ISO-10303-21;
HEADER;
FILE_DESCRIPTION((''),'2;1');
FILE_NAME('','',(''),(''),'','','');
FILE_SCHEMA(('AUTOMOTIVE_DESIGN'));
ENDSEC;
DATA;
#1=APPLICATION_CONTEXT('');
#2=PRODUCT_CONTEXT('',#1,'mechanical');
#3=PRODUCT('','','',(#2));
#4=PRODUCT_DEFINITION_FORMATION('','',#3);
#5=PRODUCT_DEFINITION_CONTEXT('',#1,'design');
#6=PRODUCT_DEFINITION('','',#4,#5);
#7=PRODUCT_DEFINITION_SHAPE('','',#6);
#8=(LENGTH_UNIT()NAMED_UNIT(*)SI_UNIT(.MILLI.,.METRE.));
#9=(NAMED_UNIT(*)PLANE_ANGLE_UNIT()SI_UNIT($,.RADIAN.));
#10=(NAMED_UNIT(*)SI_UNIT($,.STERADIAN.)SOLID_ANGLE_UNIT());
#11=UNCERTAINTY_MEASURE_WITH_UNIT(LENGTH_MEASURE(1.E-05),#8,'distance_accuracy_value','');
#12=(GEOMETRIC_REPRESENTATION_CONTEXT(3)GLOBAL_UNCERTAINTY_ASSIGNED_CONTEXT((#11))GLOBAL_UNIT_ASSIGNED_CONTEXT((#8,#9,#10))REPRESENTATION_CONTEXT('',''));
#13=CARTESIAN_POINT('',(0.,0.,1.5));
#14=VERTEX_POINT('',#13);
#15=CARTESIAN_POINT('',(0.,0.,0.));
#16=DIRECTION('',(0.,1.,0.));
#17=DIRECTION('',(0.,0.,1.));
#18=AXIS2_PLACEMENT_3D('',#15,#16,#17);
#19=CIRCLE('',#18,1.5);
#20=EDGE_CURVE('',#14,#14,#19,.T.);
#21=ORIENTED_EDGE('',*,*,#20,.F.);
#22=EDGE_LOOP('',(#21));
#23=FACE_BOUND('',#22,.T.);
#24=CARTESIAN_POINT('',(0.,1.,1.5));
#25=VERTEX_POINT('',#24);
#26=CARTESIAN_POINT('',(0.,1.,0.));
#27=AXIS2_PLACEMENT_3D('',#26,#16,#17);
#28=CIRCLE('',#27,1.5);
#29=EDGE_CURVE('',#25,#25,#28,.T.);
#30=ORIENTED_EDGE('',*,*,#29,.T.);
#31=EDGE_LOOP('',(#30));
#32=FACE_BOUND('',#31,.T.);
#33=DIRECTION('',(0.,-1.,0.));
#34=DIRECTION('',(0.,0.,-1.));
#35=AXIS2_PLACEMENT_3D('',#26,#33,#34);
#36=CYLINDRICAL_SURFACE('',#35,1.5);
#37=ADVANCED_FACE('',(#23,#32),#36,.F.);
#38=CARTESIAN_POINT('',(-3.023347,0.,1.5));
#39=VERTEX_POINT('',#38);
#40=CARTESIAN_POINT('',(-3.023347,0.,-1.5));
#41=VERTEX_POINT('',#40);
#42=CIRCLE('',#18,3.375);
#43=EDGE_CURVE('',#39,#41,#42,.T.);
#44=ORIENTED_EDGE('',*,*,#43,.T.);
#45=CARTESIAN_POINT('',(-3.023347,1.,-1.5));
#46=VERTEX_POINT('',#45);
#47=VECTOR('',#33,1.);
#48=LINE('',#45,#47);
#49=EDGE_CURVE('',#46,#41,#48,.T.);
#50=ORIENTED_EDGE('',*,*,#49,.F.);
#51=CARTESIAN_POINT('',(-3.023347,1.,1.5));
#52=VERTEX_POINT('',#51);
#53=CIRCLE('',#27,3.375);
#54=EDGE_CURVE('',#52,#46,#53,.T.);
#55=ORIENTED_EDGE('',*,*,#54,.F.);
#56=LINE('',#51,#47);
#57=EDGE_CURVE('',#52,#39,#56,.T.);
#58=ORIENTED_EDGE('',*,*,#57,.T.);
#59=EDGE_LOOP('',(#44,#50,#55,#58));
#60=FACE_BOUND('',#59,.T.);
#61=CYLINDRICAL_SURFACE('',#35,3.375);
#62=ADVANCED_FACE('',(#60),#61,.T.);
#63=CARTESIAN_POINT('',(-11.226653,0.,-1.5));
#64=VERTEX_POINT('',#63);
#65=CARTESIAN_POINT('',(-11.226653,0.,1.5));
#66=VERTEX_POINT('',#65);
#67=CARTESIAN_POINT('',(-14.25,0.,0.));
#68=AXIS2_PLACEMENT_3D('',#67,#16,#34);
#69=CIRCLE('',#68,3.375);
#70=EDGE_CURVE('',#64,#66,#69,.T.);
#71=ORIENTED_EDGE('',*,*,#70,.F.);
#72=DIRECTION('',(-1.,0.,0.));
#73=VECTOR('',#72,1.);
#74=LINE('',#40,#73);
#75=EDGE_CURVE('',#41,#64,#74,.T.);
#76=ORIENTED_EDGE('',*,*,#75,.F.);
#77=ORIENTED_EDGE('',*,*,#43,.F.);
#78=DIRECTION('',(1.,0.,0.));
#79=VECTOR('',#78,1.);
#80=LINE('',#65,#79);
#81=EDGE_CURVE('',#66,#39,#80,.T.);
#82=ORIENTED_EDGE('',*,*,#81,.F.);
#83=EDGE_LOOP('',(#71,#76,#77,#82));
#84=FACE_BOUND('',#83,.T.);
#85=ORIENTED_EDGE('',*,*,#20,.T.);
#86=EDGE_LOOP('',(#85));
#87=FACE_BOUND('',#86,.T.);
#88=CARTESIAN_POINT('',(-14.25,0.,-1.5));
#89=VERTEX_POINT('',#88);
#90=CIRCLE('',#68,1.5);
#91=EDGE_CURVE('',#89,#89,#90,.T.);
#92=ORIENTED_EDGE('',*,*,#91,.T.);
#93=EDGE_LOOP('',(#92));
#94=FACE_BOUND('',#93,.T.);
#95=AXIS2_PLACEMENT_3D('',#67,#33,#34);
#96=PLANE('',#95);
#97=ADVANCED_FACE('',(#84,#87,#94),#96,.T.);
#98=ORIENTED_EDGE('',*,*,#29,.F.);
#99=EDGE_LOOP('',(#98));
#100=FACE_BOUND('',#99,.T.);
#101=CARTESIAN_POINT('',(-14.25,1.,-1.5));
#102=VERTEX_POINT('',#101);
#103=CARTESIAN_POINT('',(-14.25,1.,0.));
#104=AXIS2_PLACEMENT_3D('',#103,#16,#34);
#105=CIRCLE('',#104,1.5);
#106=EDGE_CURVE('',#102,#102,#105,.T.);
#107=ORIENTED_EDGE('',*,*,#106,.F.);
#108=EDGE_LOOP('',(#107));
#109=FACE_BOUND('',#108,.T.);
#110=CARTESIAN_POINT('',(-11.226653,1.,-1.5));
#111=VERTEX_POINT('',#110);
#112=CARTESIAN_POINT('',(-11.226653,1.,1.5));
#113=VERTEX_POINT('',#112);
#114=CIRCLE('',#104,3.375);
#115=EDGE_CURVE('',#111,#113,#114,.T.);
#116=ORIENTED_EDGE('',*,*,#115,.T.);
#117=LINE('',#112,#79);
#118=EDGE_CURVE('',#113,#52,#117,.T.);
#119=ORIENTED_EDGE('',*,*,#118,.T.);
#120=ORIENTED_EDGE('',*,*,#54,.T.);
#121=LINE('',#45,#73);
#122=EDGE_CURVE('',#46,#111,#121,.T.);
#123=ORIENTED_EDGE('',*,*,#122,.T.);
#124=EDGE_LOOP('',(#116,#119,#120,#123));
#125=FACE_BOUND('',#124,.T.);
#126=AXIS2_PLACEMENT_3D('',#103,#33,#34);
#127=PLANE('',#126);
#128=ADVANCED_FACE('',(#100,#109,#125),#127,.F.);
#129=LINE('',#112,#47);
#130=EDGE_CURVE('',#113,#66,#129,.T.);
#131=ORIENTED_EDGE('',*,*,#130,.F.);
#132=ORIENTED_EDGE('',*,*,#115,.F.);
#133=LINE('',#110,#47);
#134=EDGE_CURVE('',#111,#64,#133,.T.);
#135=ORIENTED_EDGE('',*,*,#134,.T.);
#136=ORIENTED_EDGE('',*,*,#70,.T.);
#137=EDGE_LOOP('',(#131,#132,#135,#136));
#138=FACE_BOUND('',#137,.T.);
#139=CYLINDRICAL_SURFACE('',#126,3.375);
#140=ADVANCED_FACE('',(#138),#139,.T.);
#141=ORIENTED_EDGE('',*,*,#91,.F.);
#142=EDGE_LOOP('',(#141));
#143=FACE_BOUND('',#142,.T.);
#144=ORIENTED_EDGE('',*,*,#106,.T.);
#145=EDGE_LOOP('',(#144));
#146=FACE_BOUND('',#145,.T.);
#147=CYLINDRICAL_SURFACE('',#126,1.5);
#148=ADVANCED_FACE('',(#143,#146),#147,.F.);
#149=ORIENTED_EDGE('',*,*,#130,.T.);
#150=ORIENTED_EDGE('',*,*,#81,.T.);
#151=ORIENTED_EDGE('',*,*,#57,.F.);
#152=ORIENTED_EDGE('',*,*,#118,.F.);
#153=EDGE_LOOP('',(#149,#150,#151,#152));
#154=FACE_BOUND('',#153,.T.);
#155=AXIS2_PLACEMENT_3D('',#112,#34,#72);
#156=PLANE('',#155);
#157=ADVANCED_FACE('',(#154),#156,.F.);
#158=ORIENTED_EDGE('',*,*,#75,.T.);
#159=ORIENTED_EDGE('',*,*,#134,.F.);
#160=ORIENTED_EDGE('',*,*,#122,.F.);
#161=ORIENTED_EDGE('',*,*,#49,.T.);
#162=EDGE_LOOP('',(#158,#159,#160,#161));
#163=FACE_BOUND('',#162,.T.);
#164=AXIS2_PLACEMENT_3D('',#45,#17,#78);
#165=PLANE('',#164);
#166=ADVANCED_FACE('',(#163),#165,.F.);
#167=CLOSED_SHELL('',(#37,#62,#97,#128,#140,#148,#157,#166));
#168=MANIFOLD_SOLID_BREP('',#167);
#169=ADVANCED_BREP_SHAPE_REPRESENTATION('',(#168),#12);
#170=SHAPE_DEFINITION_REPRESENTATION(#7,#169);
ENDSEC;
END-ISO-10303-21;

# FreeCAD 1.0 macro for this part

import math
import FreeCAD as App
import Part
import Sketcher
from FreeCAD import Vector

doc = App.newDocument("Part")
body = doc.addObject("PartDesign::Body", "Body")

# Sketch on XZ plane
sketch1 = body.newObject("Sketcher::SketchObject", "Sketch")
sketch1.AttachmentSupport = (doc.getObject("XZ_Plane"), [""])
sketch1.MapMode = "FlatFace"
sketch1.addGeometry(Part.LineSegment(Vector(-3.023347, -1.5, 0), Vector(-11.226653, -1.5, 0)), False)
sketch1.addGeometry(Part.ArcOfCircle(Part.Circle(Vector(-14.25, 0, 0), Vector(0, 0, 1), 3.375), math.radians(26.3878), math.radians(333.6122)), False)
sketch1.addGeometry(Part.LineSegment(Vector(-11.226653, 1.5, 0), Vector(-3.023347, 1.5, 0)), False)
sketch1.addGeometry(Part.ArcOfCircle(Part.Circle(Vector(0, 0, 0), Vector(0, 0, 1), 3.375), math.radians(-153.6122), math.radians(153.6122)), False)
sketch1.addGeometry(Part.Circle(Vector(-14.25, 0, 0), Vector(0, 0, 1), 1.5), False)
sketch1.addGeometry(Part.Circle(Vector(0, 0, 0), Vector(0, 0, 1), 1.5), False)
sketch1.addConstraint(Sketcher.Constraint("Coincident", 0, 2, 1, 2))
sketch1.addConstraint(Sketcher.Constraint("Coincident", 1, 1, 2, 1))
sketch1.addConstraint(Sketcher.Constraint("Coincident", 2, 2, 3, 2))
sketch1.addConstraint(Sketcher.Constraint("Coincident", 3, 1, 0, 1))
sketch1.addConstraint(Sketcher.Constraint("Horizontal", 0))
sketch1.addConstraint(Sketcher.Constraint("Horizontal", 2))
sketch1.addConstraint(Sketcher.Constraint("Coincident", 3, 3, -1, 1))
sketch1.addConstraint(Sketcher.Constraint("Coincident", 5, 3, -1, 1))
sketch1.addConstraint(Sketcher.Constraint("Coincident", 4, 3, 1, 3))
sketch1.addConstraint(Sketcher.Constraint("Equal", 1, 3))
sketch1.addConstraint(Sketcher.Constraint("Equal", 4, 5))
sketch1.addConstraint(Sketcher.Constraint("Symmetric", 0, 2, 1, 1, -1))
sketch1.addConstraint(Sketcher.Constraint("Diameter", 4, 3.0))
sketch1.addConstraint(Sketcher.Constraint("Radius", 1, 3.375))
sketch1.addConstraint(Sketcher.Constraint("DistanceY", 0, 2, 1, 1, 3.0))
sketch1.addConstraint(Sketcher.Constraint("DistanceX", 1, 3, -1, 1, 14.25))
pad1 = body.newObject("PartDesign::Pad", "Pad")
pad1.Profile = sketch1
pad1.Length = 1
pad1.Reversed = True

doc.recompute()
